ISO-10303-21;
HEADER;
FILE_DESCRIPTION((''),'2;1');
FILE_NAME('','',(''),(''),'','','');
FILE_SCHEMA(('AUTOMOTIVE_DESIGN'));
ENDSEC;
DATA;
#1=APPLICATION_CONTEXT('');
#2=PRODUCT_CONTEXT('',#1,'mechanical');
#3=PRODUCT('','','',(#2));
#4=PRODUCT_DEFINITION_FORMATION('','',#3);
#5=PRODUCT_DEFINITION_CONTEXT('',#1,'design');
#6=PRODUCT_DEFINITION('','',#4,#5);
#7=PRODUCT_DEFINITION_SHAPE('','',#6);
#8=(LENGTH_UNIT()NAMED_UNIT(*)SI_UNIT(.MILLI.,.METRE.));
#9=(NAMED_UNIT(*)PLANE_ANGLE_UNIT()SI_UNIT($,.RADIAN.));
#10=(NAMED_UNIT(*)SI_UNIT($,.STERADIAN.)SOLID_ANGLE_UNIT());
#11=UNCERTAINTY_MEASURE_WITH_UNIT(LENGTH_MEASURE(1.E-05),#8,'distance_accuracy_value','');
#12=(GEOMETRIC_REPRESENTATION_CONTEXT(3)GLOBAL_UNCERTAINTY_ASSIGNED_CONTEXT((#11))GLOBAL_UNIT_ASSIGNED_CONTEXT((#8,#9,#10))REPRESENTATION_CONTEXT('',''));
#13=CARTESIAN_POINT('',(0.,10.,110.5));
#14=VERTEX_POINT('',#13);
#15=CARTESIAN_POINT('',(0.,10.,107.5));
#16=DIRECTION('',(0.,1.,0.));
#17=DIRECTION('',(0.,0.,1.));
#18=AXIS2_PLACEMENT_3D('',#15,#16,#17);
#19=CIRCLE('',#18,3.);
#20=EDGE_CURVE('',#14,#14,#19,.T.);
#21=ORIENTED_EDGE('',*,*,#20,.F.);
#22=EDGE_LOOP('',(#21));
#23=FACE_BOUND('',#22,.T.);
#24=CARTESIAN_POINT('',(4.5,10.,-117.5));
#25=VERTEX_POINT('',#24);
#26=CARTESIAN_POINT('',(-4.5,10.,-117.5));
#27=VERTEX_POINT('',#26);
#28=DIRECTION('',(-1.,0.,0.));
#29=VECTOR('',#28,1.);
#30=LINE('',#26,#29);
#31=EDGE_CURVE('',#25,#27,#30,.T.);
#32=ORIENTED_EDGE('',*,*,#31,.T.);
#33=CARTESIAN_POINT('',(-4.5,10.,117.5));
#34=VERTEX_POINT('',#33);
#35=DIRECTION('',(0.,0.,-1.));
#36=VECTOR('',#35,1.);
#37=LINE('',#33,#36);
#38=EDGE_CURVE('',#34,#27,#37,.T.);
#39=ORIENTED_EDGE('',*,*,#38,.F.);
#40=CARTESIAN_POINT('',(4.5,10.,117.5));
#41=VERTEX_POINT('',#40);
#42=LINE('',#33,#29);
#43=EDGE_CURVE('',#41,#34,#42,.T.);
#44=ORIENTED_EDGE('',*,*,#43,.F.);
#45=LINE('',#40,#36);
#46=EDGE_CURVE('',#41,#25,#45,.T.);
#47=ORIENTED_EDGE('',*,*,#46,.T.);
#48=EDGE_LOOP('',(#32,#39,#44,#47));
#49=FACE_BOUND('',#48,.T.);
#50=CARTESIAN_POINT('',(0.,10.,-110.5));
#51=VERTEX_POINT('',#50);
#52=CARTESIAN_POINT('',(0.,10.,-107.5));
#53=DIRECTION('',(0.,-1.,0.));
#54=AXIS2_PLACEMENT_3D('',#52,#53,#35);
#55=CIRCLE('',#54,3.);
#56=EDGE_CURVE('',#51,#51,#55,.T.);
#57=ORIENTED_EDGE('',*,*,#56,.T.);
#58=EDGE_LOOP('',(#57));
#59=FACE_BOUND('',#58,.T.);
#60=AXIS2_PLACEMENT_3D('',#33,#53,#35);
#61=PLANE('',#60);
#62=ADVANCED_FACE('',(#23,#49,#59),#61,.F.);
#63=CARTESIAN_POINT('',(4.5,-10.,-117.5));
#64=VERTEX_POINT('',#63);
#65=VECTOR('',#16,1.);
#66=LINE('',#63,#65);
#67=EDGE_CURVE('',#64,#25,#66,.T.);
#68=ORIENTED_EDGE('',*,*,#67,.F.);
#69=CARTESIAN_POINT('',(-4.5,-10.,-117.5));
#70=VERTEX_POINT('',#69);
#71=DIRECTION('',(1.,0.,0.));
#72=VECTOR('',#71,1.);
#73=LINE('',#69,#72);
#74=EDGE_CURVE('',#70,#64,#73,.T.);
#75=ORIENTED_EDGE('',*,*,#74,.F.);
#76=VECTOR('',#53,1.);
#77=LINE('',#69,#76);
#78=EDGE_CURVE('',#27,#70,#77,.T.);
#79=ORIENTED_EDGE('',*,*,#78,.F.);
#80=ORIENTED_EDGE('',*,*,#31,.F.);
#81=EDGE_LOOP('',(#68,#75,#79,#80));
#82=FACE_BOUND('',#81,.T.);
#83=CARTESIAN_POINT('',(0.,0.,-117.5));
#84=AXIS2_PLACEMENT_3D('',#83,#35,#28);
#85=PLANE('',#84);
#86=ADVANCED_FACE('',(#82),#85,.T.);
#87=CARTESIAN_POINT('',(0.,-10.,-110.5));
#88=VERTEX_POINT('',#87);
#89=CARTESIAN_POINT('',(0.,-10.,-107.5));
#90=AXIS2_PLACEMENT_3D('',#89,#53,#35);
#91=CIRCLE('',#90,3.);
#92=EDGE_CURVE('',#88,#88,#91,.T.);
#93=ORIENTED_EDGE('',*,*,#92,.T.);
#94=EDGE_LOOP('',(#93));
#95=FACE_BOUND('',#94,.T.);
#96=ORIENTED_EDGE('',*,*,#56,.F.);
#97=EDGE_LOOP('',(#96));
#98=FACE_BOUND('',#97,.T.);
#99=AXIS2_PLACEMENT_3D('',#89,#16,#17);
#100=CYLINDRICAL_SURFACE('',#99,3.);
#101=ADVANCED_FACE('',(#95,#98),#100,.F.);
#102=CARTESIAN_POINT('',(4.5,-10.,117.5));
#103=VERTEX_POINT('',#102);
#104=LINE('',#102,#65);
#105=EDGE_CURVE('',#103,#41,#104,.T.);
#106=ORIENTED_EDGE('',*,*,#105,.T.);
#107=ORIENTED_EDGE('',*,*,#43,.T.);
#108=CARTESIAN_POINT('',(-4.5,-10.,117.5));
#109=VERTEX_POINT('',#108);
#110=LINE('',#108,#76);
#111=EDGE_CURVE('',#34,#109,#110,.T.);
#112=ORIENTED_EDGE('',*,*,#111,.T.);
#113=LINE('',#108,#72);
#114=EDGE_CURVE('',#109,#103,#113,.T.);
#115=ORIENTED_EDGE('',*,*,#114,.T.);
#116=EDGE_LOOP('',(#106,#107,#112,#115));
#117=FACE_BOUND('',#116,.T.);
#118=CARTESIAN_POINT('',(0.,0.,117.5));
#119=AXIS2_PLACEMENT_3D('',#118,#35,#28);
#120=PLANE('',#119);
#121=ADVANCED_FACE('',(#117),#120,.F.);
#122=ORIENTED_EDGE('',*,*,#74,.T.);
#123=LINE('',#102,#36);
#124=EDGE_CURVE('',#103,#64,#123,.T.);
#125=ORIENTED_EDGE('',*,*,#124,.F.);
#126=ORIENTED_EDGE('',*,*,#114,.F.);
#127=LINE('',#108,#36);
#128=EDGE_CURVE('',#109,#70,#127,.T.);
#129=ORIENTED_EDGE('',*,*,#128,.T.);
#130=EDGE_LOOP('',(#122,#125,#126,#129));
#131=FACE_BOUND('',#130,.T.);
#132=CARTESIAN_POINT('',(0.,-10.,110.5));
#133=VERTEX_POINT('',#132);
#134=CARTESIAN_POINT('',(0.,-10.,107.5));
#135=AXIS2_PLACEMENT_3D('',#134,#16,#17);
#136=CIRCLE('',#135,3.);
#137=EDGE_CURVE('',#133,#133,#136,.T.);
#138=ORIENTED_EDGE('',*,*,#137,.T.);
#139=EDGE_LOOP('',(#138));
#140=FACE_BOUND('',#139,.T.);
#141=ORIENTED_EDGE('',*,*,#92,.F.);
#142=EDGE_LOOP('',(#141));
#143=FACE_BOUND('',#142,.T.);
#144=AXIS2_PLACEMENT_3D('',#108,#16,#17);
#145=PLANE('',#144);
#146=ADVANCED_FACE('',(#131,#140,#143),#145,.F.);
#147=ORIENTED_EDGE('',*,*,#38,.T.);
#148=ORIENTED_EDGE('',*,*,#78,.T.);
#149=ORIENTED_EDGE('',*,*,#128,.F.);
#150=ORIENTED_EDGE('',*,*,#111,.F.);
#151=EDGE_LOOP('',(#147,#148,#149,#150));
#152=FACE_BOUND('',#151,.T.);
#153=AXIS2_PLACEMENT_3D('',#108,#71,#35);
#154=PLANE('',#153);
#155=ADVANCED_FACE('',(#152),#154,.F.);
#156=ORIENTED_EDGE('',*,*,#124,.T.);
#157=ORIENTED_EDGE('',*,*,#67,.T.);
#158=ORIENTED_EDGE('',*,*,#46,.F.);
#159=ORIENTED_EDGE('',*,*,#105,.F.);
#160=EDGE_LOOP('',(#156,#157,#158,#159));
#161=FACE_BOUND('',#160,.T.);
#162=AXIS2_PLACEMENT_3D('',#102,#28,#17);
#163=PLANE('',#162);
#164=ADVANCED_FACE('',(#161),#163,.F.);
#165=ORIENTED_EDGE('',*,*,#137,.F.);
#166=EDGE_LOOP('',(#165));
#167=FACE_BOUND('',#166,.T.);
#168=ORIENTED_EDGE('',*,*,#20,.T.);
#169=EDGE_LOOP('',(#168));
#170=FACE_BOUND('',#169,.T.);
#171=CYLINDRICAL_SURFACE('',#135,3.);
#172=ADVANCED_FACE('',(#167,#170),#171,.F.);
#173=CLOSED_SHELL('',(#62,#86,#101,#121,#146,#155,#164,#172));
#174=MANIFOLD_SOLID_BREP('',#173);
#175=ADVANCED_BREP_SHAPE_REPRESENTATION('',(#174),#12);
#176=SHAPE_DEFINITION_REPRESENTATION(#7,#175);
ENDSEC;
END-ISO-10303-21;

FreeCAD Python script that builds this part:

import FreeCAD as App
import Part
import Sketcher
Q = App.Units.Quantity

doc = App.newDocument("Part")
params = doc.addObject("Spreadsheet::Sheet", "Params")
for row, (alias, value) in enumerate([
    ("sketch1_width", "9 mm"),
    ("sketch1_height", "20 mm"),
    ("pad1_length", "235 mm"),
    ("sketch2_diameter", "6 mm"),
], start=1):
    params.set(f"A{row}", alias)
    params.set(f"B{row}", "=" + value)
    params.setAlias(f"B{row}", alias)

body = doc.addObject("PartDesign::Body", "Body")

sketch1 = doc.addObject("Sketcher::SketchObject", "Sketch")
body.addObject(sketch1)
sketch1.AttachmentSupport = (doc.XY_Plane, [""])
sketch1.MapMode = "FlatFace"
sketch1.addGeometry(Part.LineSegment(App.Vector(-4, 10, 0), App.Vector(-4, -10, 0)), False)
sketch1.addGeometry(Part.LineSegment(App.Vector(-4, -10, 0), App.Vector(4, -10, 0)), False)
sketch1.addGeometry(Part.LineSegment(App.Vector(4, -10, 0), App.Vector(4, 10, 0)), False)
sketch1.addGeometry(Part.LineSegment(App.Vector(4, 10, 0), App.Vector(-4, 10, 0)), False)
sketch1.addConstraint(Sketcher.Constraint("Coincident", 0, 2, 1, 1))
sketch1.addConstraint(Sketcher.Constraint("Coincident", 1, 2, 2, 1))
sketch1.addConstraint(Sketcher.Constraint("Coincident", 2, 2, 3, 1))
sketch1.addConstraint(Sketcher.Constraint("Coincident", 3, 2, 0, 1))
sketch1.addConstraint(Sketcher.Constraint("Vertical", 0))
sketch1.addConstraint(Sketcher.Constraint("Horizontal", 1))
sketch1.addConstraint(Sketcher.Constraint("Vertical", 2))
sketch1.addConstraint(Sketcher.Constraint("Horizontal", 3))
sketch1.addConstraint(Sketcher.Constraint("Symmetric", 0, 2, 2, 2, -1, 1))
sketch1.addConstraint(Sketcher.Constraint("DistanceX", 1, 1, 1, 2, Q("9 mm")))
sketch1.addConstraint(Sketcher.Constraint("DistanceY", 0, 2, 0, 1, Q("20 mm")))
sketch1.setExpression("Constraints[9]", "Params.sketch1_width")
sketch1.setExpression("Constraints[10]", "Params.sketch1_height")
pad1 = doc.addObject("PartDesign::Pad", "Pad")
body.addObject(pad1)
pad1.Profile = sketch1
pad1.setExpression("Length", "Params.pad1_length")
pad1.Midplane = True

sketch2 = doc.addObject("Sketcher::SketchObject", "Sketch001")
body.addObject(sketch2)
sketch2.AttachmentSupport = (doc.XZ_Plane, [""])
sketch2.MapMode = "FlatFace"
sketch2.AttachmentOffset = App.Placement(App.Vector(0, 0, -10), App.Rotation())
sketch2.addGeometry(Part.Circle(App.Vector(0, 107.5, 0), App.Vector(0, 0, 1), 3), False)
sketch2.addConstraint(Sketcher.Constraint("PointOnObject", 0, 3, -2))
sketch2.addConstraint(Sketcher.Constraint("Diameter", 0, Q("6 mm")))
sketch2.addConstraint(Sketcher.Constraint("DistanceY", -1, 1, 0, 3, Q("107.5 mm")))
sketch2.setExpression("Constraints[1]", "Params.sketch2_diameter")
pocket1 = doc.addObject("PartDesign::Pocket", "Pocket")
body.addObject(pocket1)
pocket1.Profile = sketch2
pocket1.Type = "ThroughAll"
pocket1.Reversed = True
doc.recompute()

mirrored = doc.addObject("PartDesign::Mirrored", "Mirrored")
body.addObject(mirrored)
mirrored.Originals = [pocket1]
mirrored.MirrorPlane = (doc.XY_Plane, [""])
body.Tip = mirrored

doc.recompute()
